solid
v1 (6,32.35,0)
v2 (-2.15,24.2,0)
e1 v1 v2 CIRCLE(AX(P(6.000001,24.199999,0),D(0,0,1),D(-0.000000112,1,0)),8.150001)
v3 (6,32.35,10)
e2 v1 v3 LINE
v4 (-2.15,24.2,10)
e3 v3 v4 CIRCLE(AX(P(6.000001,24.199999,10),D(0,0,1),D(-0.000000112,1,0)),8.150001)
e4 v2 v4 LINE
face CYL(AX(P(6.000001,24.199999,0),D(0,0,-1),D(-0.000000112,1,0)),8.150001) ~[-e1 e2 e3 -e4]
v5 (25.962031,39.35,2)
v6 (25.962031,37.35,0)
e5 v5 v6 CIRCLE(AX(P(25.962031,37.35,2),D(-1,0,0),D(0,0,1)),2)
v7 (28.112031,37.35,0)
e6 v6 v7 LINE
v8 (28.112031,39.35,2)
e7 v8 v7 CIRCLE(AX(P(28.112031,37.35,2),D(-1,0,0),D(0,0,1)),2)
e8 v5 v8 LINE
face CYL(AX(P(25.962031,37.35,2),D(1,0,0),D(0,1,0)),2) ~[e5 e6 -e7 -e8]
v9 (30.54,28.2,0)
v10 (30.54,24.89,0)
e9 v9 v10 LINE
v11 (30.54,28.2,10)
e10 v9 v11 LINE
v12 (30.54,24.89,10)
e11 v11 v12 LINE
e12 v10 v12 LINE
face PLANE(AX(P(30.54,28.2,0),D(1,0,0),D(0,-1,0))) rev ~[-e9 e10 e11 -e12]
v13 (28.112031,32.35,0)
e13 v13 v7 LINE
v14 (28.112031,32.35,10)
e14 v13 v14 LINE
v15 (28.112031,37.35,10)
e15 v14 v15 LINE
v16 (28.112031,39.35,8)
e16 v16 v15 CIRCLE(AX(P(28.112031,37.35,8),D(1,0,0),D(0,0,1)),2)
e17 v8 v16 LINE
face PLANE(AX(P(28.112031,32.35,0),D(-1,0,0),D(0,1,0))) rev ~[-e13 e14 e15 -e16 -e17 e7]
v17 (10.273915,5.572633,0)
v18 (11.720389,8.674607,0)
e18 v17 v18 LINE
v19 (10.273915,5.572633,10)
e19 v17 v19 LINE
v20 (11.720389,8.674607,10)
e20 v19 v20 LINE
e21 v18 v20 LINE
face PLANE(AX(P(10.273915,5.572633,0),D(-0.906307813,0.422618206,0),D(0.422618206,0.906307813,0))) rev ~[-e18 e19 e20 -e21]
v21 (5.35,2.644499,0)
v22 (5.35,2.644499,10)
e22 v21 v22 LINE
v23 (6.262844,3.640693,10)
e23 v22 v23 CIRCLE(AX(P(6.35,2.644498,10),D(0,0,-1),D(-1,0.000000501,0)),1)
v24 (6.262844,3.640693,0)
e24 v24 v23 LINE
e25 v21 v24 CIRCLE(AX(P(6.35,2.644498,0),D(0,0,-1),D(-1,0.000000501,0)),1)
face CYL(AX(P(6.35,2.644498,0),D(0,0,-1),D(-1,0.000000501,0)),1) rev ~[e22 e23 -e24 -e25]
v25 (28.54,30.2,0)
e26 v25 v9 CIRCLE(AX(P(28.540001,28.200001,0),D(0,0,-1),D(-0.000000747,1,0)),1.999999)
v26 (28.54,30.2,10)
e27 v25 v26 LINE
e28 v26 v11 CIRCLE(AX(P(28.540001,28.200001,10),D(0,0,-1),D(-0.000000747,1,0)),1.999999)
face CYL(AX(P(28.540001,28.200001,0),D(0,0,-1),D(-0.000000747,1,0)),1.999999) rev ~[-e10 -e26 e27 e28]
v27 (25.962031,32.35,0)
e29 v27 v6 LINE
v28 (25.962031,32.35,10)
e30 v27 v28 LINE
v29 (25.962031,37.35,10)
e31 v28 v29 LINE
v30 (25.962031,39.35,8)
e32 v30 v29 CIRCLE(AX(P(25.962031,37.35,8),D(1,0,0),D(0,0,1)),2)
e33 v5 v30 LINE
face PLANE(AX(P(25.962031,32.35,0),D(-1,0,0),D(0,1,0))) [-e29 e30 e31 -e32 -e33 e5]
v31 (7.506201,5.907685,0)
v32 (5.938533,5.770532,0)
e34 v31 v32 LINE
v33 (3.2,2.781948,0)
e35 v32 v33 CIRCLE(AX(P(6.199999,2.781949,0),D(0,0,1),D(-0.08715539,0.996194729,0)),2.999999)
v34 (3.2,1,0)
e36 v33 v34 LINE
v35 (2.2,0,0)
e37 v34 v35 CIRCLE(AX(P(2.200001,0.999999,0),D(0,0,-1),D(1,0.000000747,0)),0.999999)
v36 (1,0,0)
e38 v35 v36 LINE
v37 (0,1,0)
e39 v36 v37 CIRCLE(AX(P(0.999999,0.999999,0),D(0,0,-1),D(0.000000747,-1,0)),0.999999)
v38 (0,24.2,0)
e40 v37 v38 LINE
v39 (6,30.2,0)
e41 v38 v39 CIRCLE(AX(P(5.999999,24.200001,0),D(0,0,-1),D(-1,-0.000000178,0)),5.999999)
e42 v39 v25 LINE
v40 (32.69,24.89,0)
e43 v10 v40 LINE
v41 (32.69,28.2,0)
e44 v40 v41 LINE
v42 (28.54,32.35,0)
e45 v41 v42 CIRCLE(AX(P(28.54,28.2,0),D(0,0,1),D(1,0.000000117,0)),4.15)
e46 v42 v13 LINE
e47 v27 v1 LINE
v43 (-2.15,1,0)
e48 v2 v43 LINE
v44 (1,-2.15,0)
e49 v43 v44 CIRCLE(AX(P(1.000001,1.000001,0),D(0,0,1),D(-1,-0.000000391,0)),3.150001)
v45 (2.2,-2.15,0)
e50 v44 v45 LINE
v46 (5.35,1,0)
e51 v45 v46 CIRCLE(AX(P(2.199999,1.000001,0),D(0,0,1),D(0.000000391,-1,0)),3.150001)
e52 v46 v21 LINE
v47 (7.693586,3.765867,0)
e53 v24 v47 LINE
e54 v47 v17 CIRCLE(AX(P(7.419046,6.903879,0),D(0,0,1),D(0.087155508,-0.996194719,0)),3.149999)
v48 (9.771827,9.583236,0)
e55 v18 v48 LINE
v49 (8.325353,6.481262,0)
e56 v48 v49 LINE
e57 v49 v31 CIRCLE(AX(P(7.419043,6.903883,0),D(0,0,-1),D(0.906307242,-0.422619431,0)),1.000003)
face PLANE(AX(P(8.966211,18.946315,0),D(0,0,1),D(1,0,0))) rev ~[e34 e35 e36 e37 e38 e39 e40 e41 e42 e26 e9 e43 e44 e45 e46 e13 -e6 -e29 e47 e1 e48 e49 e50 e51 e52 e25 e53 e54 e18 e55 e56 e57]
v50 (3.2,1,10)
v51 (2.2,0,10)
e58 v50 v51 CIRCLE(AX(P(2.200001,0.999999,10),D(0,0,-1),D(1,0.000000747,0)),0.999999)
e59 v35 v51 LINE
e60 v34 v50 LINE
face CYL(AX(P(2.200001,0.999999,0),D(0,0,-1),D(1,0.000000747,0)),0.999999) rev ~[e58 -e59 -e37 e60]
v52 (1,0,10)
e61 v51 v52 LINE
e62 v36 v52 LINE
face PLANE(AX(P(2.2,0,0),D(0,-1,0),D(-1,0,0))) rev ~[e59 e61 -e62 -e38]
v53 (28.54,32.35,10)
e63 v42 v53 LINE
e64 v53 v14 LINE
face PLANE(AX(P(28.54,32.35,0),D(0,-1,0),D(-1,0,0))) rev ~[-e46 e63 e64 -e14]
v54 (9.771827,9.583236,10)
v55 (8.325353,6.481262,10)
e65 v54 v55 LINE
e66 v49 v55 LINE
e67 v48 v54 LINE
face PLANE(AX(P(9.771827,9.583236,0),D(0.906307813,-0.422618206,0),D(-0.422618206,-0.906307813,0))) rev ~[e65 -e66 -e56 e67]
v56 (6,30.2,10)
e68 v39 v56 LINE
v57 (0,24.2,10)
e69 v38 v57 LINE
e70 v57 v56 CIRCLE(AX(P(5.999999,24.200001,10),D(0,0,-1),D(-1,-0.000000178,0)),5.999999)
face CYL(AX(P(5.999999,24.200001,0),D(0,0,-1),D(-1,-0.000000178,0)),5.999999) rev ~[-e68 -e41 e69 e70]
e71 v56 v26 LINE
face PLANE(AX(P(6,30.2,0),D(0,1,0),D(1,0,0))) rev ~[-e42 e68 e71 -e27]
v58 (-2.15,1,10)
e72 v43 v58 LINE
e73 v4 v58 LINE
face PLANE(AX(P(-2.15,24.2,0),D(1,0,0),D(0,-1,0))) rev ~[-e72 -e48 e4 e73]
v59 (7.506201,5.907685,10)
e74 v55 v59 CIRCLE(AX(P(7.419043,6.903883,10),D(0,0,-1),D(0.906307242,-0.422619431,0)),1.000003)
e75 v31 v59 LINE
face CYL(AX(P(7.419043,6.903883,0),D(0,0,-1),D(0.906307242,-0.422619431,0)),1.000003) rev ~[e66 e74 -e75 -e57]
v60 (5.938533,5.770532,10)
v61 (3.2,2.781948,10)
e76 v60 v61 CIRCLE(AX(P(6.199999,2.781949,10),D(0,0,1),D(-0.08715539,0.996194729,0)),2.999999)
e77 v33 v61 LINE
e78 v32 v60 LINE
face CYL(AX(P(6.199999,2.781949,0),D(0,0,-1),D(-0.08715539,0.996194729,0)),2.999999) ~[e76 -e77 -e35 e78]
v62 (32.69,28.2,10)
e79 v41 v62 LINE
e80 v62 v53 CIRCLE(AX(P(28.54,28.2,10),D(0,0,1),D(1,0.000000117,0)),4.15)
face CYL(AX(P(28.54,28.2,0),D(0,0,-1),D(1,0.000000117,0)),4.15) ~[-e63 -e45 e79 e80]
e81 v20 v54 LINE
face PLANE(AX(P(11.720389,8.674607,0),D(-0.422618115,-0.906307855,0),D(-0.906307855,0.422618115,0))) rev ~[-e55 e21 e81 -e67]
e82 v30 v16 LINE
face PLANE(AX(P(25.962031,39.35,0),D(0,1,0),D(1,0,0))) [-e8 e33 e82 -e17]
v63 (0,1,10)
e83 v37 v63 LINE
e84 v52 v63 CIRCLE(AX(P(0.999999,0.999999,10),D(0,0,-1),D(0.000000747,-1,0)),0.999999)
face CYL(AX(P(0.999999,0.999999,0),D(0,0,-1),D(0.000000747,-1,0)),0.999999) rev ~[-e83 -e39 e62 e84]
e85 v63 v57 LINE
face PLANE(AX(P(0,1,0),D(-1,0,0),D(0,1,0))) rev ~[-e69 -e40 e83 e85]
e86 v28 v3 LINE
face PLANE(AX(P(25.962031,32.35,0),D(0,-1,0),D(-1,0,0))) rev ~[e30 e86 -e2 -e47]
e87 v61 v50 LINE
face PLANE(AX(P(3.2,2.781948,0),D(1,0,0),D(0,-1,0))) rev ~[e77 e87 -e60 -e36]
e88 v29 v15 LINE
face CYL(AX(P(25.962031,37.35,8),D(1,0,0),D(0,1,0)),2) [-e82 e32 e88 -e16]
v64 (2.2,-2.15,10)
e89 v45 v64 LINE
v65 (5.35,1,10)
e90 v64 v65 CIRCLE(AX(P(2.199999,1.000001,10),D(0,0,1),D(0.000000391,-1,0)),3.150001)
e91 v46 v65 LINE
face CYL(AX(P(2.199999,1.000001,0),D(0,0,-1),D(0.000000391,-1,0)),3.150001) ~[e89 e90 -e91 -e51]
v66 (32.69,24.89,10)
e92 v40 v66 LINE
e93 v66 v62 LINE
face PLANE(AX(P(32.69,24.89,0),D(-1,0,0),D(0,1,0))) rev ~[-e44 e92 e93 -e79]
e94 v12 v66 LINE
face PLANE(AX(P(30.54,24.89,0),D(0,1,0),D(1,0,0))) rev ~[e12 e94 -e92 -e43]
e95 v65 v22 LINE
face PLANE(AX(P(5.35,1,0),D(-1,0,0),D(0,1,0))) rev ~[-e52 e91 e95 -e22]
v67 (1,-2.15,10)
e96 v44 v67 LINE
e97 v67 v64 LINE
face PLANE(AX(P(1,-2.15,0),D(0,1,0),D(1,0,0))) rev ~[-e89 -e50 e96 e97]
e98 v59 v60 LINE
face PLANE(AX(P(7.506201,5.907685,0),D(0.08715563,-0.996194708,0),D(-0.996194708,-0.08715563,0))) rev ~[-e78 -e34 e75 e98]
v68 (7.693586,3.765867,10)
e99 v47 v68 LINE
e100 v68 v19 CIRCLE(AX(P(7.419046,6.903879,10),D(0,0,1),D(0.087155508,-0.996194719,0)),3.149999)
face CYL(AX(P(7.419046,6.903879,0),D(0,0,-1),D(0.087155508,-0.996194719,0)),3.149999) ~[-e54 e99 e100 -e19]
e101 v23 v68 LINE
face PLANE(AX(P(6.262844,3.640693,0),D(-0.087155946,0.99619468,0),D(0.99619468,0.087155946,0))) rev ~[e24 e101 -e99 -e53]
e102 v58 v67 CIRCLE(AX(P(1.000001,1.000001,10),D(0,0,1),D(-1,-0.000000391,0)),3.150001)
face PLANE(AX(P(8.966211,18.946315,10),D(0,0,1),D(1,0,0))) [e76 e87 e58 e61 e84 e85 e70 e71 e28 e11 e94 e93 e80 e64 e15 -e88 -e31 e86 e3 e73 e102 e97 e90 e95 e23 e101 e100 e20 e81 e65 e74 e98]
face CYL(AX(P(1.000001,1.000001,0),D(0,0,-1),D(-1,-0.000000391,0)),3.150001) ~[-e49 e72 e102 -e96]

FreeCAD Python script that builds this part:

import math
import FreeCAD as App
import Part
import Sketcher
from FreeCAD import Vector
Q = App.Units.Quantity


def edges_at(feature, points):
    """Names of the edges that pass closest to the given points."""
    edges = feature.Shape.Edges
    near = lambda p: min(range(len(edges)), key=lambda i: edges[i].distToShape(Part.Vertex(*p))[0])
    return sorted({f"Edge{near(p) + 1}" for p in points})

doc = App.newDocument("Part")
body = doc.addObject("PartDesign::Body", "Body")

# Sketch on XY plane
sketch1 = doc.addObject("Sketcher::SketchObject", "Sketch")
body.addObject(sketch1)
sketch1.AttachmentSupport = (doc.XY_Plane, [""])
sketch1.MapMode = "FlatFace"
sketch1.addGeometry(Part.ArcOfCircle(Part.Circle(Vector(1, 1, 0), Vector(0, 0, 1), 1), math.radians(180), math.radians(270)), False)
sketch1.addGeometry(Part.LineSegment(Vector(0, 1, 0), Vector(0, 24.2, 0)), False)
sketch1.addGeometry(Part.ArcOfCircle(Part.Circle(Vector(6, 24.2, 0), Vector(0, 0, 1), 6), math.radians(90), math.radians(180)), False)
sketch1.addGeometry(Part.LineSegment(Vector(6, 30.2, 0), Vector(28.54, 30.2, 0)), False)
sketch1.addGeometry(Part.ArcOfCircle(Part.Circle(Vector(28.54, 28.2, 0), Vector(0, 0, 1), 2), math.radians(0), math.radians(90)), False)
sketch1.addGeometry(Part.LineSegment(Vector(30.54, 28.2, 0), Vector(30.54, 24.89, 0)), False)
sketch1.addGeometry(Part.LineSegment(Vector(30.54, 24.89, 0), Vector(32.69, 24.89, 0)), False)
sketch1.addGeometry(Part.LineSegment(Vector(32.69, 24.89, 0), Vector(32.69, 28.2, 0)), False)
sketch1.addGeometry(Part.ArcOfCircle(Part.Circle(Vector(28.54, 28.2, 0), Vector(0, 0, 1), 4.15), math.radians(0), math.radians(90)), False)
sketch1.addGeometry(Part.LineSegment(Vector(28.54, 32.35, 0), Vector(28.11, 32.35, 0)), False)
sketch1.addGeometry(Part.LineSegment(Vector(28.11, 32.35, 0), Vector(28.11, 39.35, 0)), False)
sketch1.addGeometry(Part.LineSegment(Vector(28.11, 39.35, 0), Vector(25.96, 39.35, 0)), False)
sketch1.addGeometry(Part.LineSegment(Vector(25.96, 39.35, 0), Vector(25.96, 32.35, 0)), False)
sketch1.addGeometry(Part.LineSegment(Vector(25.96, 32.35, 0), Vector(6, 32.35, 0)), False)
sketch1.addGeometry(Part.ArcOfCircle(Part.Circle(Vector(6, 24.2, 0), Vector(0, 0, 1), 8.15), math.radians(90), math.radians(180)), False)
sketch1.addGeometry(Part.LineSegment(Vector(-2.15, 24.2, 0), Vector(-2.15, 1, 0)), False)
sketch1.addGeometry(Part.ArcOfCircle(Part.Circle(Vector(1, 1, 0), Vector(0, 0, 1), 3.15), math.radians(-180), math.radians(-90)), False)
sketch1.addGeometry(Part.LineSegment(Vector(1, -2.15, 0), Vector(2.2, -2.15, 0)), False)
sketch1.addGeometry(Part.ArcOfCircle(Part.Circle(Vector(2.2, 1, 0), Vector(0, 0, 1), 3.15), math.radians(-90), math.radians(0)), False)
sketch1.addGeometry(Part.LineSegment(Vector(5.35, 1, 0), Vector(5.35, 2.64, 0)), False)
sketch1.addGeometry(Part.ArcOfCircle(Part.Circle(Vector(6.35, 2.64, 0), Vector(0, 0, 1), 1), math.radians(95), math.radians(180)), False)
sketch1.addGeometry(Part.LineSegment(Vector(6.26, 3.64, 0), Vector(7.69, 3.77, 0)), False)
sketch1.addGeometry(Part.ArcOfCircle(Part.Circle(Vector(7.42, 6.9, 0), Vector(0, 0, 1), 3.15), math.radians(-85), math.radians(-25)), False)
sketch1.addGeometry(Part.LineSegment(Vector(10.27, 5.57, 0), Vector(11.72, 8.67, 0)), False)
sketch1.addGeometry(Part.LineSegment(Vector(11.72, 8.67, 0), Vector(9.77, 9.58, 0)), False)
sketch1.addGeometry(Part.LineSegment(Vector(9.77, 9.58, 0), Vector(8.33, 6.48, 0)), False)
sketch1.addGeometry(Part.ArcOfCircle(Part.Circle(Vector(7.42, 6.9, 0), Vector(0, 0, 1), 1), math.radians(-85), math.radians(-25)), False)
sketch1.addGeometry(Part.LineSegment(Vector(7.51, 5.91, 0), Vector(5.94, 5.77, 0)), False)
sketch1.addGeometry(Part.ArcOfCircle(Part.Circle(Vector(6.2, 2.78, 0), Vector(0, 0, 1), 3), math.radians(95), math.radians(180)), False)
sketch1.addGeometry(Part.LineSegment(Vector(3.2, 2.78, 0), Vector(3.2, 1, 0)), False)
sketch1.addGeometry(Part.ArcOfCircle(Part.Circle(Vector(2.2, 1, 0), Vector(0, 0, 1), 1), math.radians(-90), math.radians(0)), False)
sketch1.addGeometry(Part.LineSegment(Vector(2.2, 0, 0), Vector(1, 0, 0)), False)
sketch1.addConstraint(Sketcher.Constraint("Tangent", 0, 1, 1, 1))
sketch1.addConstraint(Sketcher.Constraint("Tangent", 1, 2, 2, 2))
sketch1.addConstraint(Sketcher.Constraint("Tangent", 2, 1, 3, 1))
sketch1.addConstraint(Sketcher.Constraint("Tangent", 3, 2, 4, 2))
sketch1.addConstraint(Sketcher.Constraint("Tangent", 4, 1, 5, 1))
sketch1.addConstraint(Sketcher.Constraint("Coincident", 5, 2, 6, 1))
sketch1.addConstraint(Sketcher.Constraint("Coincident", 6, 2, 7, 1))
sketch1.addConstraint(Sketcher.Constraint("Tangent", 7, 2, 8, 1))
sketch1.addConstraint(Sketcher.Constraint("Tangent", 8, 2, 9, 1))
sketch1.addConstraint(Sketcher.Constraint("Coincident", 9, 2, 10, 1))
sketch1.addConstraint(Sketcher.Constraint("Coincident", 10, 2, 11, 1))
sketch1.addConstraint(Sketcher.Constraint("Coincident", 11, 2, 12, 1))
sketch1.addConstraint(Sketcher.Constraint("Coincident", 12, 2, 13, 1))
sketch1.addConstraint(Sketcher.Constraint("Tangent", 13, 2, 14, 1))
sketch1.addConstraint(Sketcher.Constraint("Tangent", 14, 2, 15, 1))
sketch1.addConstraint(Sketcher.Constraint("Tangent", 15, 2, 16, 1))
sketch1.addConstraint(Sketcher.Constraint("Tangent", 16, 2, 17, 1))
sketch1.addConstraint(Sketcher.Constraint("Tangent", 17, 2, 18, 1))
sketch1.addConstraint(Sketcher.Constraint("Tangent", 18, 2, 19, 1))
sketch1.addConstraint(Sketcher.Constraint("Tangent", 19, 2, 20, 2))
sketch1.addConstraint(Sketcher.Constraint("Tangent", 20, 1, 21, 1))
sketch1.addConstraint(Sketcher.Constraint("Tangent", 21, 2, 22, 1))
sketch1.addConstraint(Sketcher.Constraint("Tangent", 22, 2, 23, 1))
sketch1.addConstraint(Sketcher.Constraint("Coincident", 23, 2, 24, 1))
sketch1.addConstraint(Sketcher.Constraint("Coincident", 24, 2, 25, 1))
sketch1.addConstraint(Sketcher.Constraint("Tangent", 25, 2, 26, 2))
sketch1.addConstraint(Sketcher.Constraint("Coincident", 26, 1, 27, 1))
sketch1.addConstraint(Sketcher.Constraint("Tangent", 27, 2, 28, 1))
sketch1.addConstraint(Sketcher.Constraint("Tangent", 28, 2, 29, 1))
sketch1.addConstraint(Sketcher.Constraint("Tangent", 29, 2, 30, 2))
sketch1.addConstraint(Sketcher.Constraint("Tangent", 30, 1, 31, 1))
sketch1.addConstraint(Sketcher.Constraint("Tangent", 31, 2, 0, 2))
sketch1.addConstraint(Sketcher.Constraint("Vertical", 1))
sketch1.addConstraint(Sketcher.Constraint("Horizontal", 3))
sketch1.addConstraint(Sketcher.Constraint("Vertical", 5))
sketch1.addConstraint(Sketcher.Constraint("Horizontal", 6))
sketch1.addConstraint(Sketcher.Constraint("Vertical", 7))
sketch1.addConstraint(Sketcher.Constraint("Horizontal", 9))
sketch1.addConstraint(Sketcher.Constraint("Vertical", 10))
sketch1.addConstraint(Sketcher.Constraint("Horizontal", 11))
sketch1.addConstraint(Sketcher.Constraint("Vertical", 12))
sketch1.addConstraint(Sketcher.Constraint("Horizontal", 13))
sketch1.addConstraint(Sketcher.Constraint("Vertical", 15))
sketch1.addConstraint(Sketcher.Constraint("Horizontal", 17))
sketch1.addConstraint(Sketcher.Constraint("Vertical", 19))
sketch1.addConstraint(Sketcher.Constraint("Vertical", 29))
sketch1.addConstraint(Sketcher.Constraint("Horizontal", 31))
sketch1.addConstraint(Sketcher.Constraint("Coincident", 8, 3, 4, 3))
sketch1.addConstraint(Sketcher.Constraint("Coincident", 14, 3, 2, 3))
sketch1.addConstraint(Sketcher.Constraint("Coincident", 16, 3, 0, 3))
sketch1.addConstraint(Sketcher.Constraint("Coincident", 26, 3, 22, 3))
sketch1.addConstraint(Sketcher.Constraint("Coincident", 30, 3, 18, 3))
sketch1.addConstraint(Sketcher.Constraint("Equal", 16, 18))
sketch1.addConstraint(Sketcher.Constraint("Equal", 0, 20))
sketch1.addConstraint(Sketcher.Constraint("PointOnObject", 0, 1, -2))
sketch1.addConstraint(Sketcher.Constraint("PointOnObject", 30, 1, -1))
sketch1.addConstraint(Sketcher.Constraint("Perpendicular", 23, 24))
sketch1.addConstraint(Sketcher.Constraint("Perpendicular", 24, 25))
sketch1.addConstraint(Sketcher.Constraint("Parallel", 21, 27))
sketch1.addConstraint(Sketcher.Constraint("Horizontal", 9, 2, 12, 2))
sketch1.addConstraint(Sketcher.Constraint("Equal", 6, 11))
sketch1.addConstraint(Sketcher.Constraint("Radius", 0, Q("0.999999 mm")))
sketch1.addConstraint(Sketcher.Constraint("Radius", 2, Q("5.999999 mm")))
sketch1.addConstraint(Sketcher.Constraint("Radius", 4, Q("1.999999 mm")))
sketch1.addConstraint(Sketcher.Constraint("Radius", 28, Q("2.999999 mm")))
sketch1.addConstraint(Sketcher.Constraint("DistanceY", 10, 1, 10, 2, Q("7 mm")))
sketch1.addConstraint(Sketcher.Constraint("Angle", 21, Q("5.000012 deg")))
sketch1.addConstraint(Sketcher.Constraint("Angle", 23, Q("65.000004 deg")))
sketch1.addConstraint(Sketcher.Constraint("Radius", 8, Q("4.15 mm")))
sketch1.addConstraint(Sketcher.Constraint("Radius", 22, Q("3.149999 mm")))
sketch1.addConstraint(Sketcher.Constraint("DistanceX", 17, 1, 17, 2, Q("1.2 mm")))
sketch1.addConstraint(Sketcher.Constraint("DistanceY", 1, 1, 1, 2, Q("23.2 mm")))
sketch1.addConstraint(Sketcher.Constraint("DistanceX", 3, 1, 3, 2, Q("22.54 mm")))
sketch1.addConstraint(Sketcher.Constraint("DistanceY", 5, 2, 5, 1, Q("3.31 mm")))
sketch1.addConstraint(Sketcher.Constraint("Distance", 24, Q("2.15 mm")))
sketch1.addConstraint(Sketcher.Constraint("DistanceY", 19, 1, 19, 2, Q("1.644499 mm")))
sketch1.addConstraint(Sketcher.Constraint("DistanceX", 9, 2, 9, 1, Q("0.427969 mm")))
sketch1.addConstraint(Sketcher.Constraint("DistanceX", -1, 1, 26, 1, Q("7.506201 mm")))
sketch1.addConstraint(Sketcher.Constraint("Distance", 23, Q("3.42265 mm")))
sketch1.addConstraint(Sketcher.Constraint("DistanceY", -1, 1, 22, 3, Q("6.903879 mm")))
pad1 = doc.addObject("PartDesign::Pad", "Pad")
body.addObject(pad1)
pad1.Profile = sketch1
pad1.Length = 10
doc.recompute()

fillet = doc.addObject("PartDesign::Fillet", "Fillet")
body.addObject(fillet)
fillet.Base = (pad1, edges_at(pad1, [(27.037, 39.35, 10), (27.037, 39.35, 0)]))
fillet.Radius = 2

doc.recompute()
